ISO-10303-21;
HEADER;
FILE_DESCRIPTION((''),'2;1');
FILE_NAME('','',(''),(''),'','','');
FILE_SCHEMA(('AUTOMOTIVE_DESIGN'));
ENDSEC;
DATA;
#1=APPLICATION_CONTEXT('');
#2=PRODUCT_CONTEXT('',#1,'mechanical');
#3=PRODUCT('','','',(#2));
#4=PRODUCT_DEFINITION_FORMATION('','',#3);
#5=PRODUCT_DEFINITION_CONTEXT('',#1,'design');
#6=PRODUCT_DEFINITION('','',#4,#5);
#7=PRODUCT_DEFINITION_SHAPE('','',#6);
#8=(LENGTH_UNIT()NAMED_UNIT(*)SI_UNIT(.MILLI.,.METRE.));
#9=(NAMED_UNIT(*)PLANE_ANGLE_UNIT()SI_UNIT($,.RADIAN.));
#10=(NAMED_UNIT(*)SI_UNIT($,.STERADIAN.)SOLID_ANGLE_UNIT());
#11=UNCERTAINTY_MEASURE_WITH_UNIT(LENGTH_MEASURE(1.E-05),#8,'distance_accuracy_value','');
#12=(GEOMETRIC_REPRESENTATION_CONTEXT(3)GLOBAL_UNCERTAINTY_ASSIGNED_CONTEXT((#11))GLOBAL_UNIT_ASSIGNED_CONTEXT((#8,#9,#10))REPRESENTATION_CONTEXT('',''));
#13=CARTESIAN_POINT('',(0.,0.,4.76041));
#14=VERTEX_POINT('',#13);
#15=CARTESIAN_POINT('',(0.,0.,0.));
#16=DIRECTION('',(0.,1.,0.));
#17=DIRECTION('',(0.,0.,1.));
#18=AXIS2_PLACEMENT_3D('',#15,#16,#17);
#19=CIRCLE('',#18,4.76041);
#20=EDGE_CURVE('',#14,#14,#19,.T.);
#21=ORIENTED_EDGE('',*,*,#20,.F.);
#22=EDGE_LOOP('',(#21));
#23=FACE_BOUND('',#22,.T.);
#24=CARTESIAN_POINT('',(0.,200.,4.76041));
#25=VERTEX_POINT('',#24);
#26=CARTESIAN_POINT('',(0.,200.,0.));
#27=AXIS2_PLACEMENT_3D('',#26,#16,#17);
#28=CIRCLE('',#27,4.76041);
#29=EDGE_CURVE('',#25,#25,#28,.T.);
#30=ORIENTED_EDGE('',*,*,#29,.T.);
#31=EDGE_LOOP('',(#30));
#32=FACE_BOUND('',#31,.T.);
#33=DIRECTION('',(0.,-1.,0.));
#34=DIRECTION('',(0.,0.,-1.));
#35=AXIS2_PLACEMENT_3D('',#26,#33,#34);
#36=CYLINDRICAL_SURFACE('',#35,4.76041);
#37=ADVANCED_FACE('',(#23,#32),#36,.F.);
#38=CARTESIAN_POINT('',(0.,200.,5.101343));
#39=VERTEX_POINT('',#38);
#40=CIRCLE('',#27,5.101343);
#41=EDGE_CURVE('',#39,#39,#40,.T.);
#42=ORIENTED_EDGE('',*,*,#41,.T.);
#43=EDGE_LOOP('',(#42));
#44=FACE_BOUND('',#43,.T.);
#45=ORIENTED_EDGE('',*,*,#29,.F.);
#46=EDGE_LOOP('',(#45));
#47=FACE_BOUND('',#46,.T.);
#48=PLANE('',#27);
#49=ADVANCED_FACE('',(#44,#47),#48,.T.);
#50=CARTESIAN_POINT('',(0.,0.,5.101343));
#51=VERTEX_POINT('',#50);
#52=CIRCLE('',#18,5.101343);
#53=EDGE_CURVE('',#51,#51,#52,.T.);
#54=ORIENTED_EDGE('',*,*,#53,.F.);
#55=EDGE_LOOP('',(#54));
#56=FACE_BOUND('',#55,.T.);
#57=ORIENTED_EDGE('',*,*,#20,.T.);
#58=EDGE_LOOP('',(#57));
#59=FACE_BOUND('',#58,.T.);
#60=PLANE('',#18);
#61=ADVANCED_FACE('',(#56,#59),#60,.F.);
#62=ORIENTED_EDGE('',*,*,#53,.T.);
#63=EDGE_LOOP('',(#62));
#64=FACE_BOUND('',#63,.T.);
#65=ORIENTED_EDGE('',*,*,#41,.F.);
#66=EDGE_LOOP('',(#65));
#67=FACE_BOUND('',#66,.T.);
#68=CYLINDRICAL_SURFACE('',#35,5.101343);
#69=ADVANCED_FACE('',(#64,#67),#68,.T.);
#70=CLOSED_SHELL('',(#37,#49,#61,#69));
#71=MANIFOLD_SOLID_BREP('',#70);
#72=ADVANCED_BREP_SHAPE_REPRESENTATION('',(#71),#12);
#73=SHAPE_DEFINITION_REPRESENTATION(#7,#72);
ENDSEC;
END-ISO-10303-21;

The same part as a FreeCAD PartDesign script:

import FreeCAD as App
import Part
import Sketcher
Q = App.Units.Quantity

doc = App.newDocument("Part")
body = doc.addObject("PartDesign::Body", "Body")

# Sketch on XZ plane
sketch1 = doc.addObject("Sketcher::SketchObject", "Sketch")
body.addObject(sketch1)
sketch1.AttachmentSupport = (doc.XZ_Plane, [""])
sketch1.MapMode = "FlatFace"
sketch1.addGeometry(Part.Circle(App.Vector(0, 0, 0), App.Vector(0, 0, 1), 5.1), False)
sketch1.addGeometry(Part.Circle(App.Vector(0, 0, 0), App.Vector(0, 0, 1), 4.8), False)
sketch1.addConstraint(Sketcher.Constraint("Coincident", 0, 3, -1, 1))
sketch1.addConstraint(Sketcher.Constraint("Coincident", 1, 3, -1, 1))
sketch1.addConstraint(Sketcher.Constraint("Diameter", 1, Q("9.52082 mm")))
sketch1.addConstraint(Sketcher.Constraint("Diameter", 0, Q("10.202687 mm")))
pad1 = doc.addObject("PartDesign::Pad", "Pad")
body.addObject(pad1)
pad1.Profile = sketch1
pad1.Length = 200
pad1.Reversed = True

doc.recompute()
